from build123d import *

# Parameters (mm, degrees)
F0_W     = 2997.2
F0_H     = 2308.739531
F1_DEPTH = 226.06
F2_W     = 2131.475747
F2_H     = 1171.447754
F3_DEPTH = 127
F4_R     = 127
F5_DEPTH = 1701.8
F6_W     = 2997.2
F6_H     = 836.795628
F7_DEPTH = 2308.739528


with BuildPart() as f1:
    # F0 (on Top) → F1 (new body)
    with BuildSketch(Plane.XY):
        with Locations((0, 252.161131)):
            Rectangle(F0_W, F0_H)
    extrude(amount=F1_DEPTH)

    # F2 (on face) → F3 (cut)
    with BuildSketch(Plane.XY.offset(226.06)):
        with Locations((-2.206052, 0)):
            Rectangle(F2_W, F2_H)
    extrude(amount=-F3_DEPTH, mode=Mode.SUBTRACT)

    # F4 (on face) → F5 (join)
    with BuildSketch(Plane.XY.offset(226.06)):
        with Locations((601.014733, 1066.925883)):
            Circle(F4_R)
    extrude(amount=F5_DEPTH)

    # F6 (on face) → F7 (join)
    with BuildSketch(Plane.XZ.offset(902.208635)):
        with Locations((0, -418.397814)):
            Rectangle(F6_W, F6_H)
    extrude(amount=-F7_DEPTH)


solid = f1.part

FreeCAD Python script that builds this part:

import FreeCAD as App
import Part
import Sketcher
Q = App.Units.Quantity


def add_polygon(sketch, points):
    """Adds a closed chain of lines whose ends are joined by coincident constraints."""
    first, n = sketch.GeometryCount, len(points)
    for a, b in zip(points, points[1:] + points[:1]):
        sketch.addGeometry(Part.LineSegment(App.Vector(*a, 0), App.Vector(*b, 0)), False)
    for i in range(n):
        sketch.addConstraint(Sketcher.Constraint("Coincident", first + i, 2, first + (i + 1) % n, 1))

doc = App.newDocument("Part")
params = doc.addObject("Spreadsheet::Sheet", "Params")
for row, (alias, value) in enumerate([
    ("sketch1_width", "118 in"),
    ("pad1_length", "8.9 in"),
    ("pocket1_length", "5 in"),
    ("sketch3_diameter", "10 in"),
    ("pad2_length", "67 in"),
    ("sketch4_width", "118 in"),
    ("pad3_length", "2308.739528 mm"),
], start=1):
    params.set(f"A{row}", alias)
    params.set(f"B{row}", "=" + value)
    params.setAlias(f"B{row}", alias)

body = doc.addObject("PartDesign::Body", "Body")

# Sketch on XY plane
sketch1 = body.newObject("Sketcher::SketchObject", "Sketch")
sketch1.AttachmentSupport = (doc.getObject("XY_Plane"), [""])
sketch1.MapMode = "FlatFace"
add_polygon(sketch1, [(-1498.6, 1406.530896), (-1498.6, -902.208635), (1498.6, -902.208635), (1498.6, 1406.530896)])  # lines 0-3
sketch1.addConstraint(Sketcher.Constraint("Vertical", 0))
sketch1.addConstraint(Sketcher.Constraint("Horizontal", 1))
sketch1.addConstraint(Sketcher.Constraint("Vertical", 2))
sketch1.addConstraint(Sketcher.Constraint("Horizontal", 3))
sketch1.addConstraint(Sketcher.Constraint("DistanceX", 1, 1, 1, 2, Q("118 in")))
sketch1.addConstraint(Sketcher.Constraint("DistanceX", 0, 2, -1, 1, Q("59 in")))
sketch1.addConstraint(Sketcher.Constraint("DistanceY", 0, 2, 0, 1, 2308.739531))
sketch1.addConstraint(Sketcher.Constraint("DistanceY", 0, 2, -1, 1, 902.208635))
sketch1.setExpression("Constraints[8]", "Params.sketch1_width")
pad1 = body.newObject("PartDesign::Pad", "Pad")
pad1.Profile = sketch1
pad1.setExpression("Length", "Params.pad1_length")

# Sketch on XY plane
sketch2 = body.newObject("Sketcher::SketchObject", "Sketch001")
sketch2.AttachmentSupport = (doc.getObject("XY_Plane"), [""])
sketch2.MapMode = "FlatFace"
sketch2.AttachmentOffset = App.Placement(App.Vector(0, 0, 8.9 * 25.4), App.Rotation())
add_polygon(sketch2, [(-1067.943925, 585.723877), (-1067.943925, -585.723877), (1063.531821, -585.723877), (1063.531821, 585.723877)])  # lines 0-3
sketch2.addConstraint(Sketcher.Constraint("Vertical", 0))
sketch2.addConstraint(Sketcher.Constraint("Horizontal", 1))
sketch2.addConstraint(Sketcher.Constraint("Vertical", 2))
sketch2.addConstraint(Sketcher.Constraint("Horizontal", 3))
sketch2.addConstraint(Sketcher.Constraint("DistanceX", 1, 1, 1, 2, 2131.475747))
sketch2.addConstraint(Sketcher.Constraint("DistanceY", 0, 2, 0, 1, 1171.447754))
sketch2.addConstraint(Sketcher.Constraint("DistanceX", -1, 1, 1, 2, 1063.531821))
sketch2.addConstraint(Sketcher.Constraint("DistanceY", 0, 2, -1, 1, 585.723877))
pocket1 = body.newObject("PartDesign::Pocket", "Pocket")
pocket1.Profile = sketch2
pocket1.setExpression("Length", "Params.pocket1_length")

# Sketch on XY plane
sketch3 = body.newObject("Sketcher::SketchObject", "Sketch002")
sketch3.AttachmentSupport = (doc.getObject("XY_Plane"), [""])
sketch3.MapMode = "FlatFace"
sketch3.AttachmentOffset = App.Placement(App.Vector(0, 0, 8.9 * 25.4), App.Rotation())
sketch3.addGeometry(Part.Circle(App.Vector(601.014733, 1066.925883, 0), App.Vector(0, 0, 1), 127), False)
sketch3.addConstraint(Sketcher.Constraint("Diameter", 0, Q("10 in")))
sketch3.addConstraint(Sketcher.Constraint("DistanceX", -1, 1, 0, 3, 601.014733))
sketch3.addConstraint(Sketcher.Constraint("DistanceY", -1, 1, 0, 3, 1066.925883))
sketch3.setExpression("Constraints[0]", "Params.sketch3_diameter")
pad2 = body.newObject("PartDesign::Pad", "Pad001")
pad2.Profile = sketch3
pad2.setExpression("Length", "Params.pad2_length")

# Sketch on XZ plane
sketch4 = body.newObject("Sketcher::SketchObject", "Sketch003")
sketch4.AttachmentSupport = (doc.getObject("XZ_Plane"), [""])
sketch4.MapMode = "FlatFace"
sketch4.AttachmentOffset = App.Placement(App.Vector(0, 0, 902.208635), App.Rotation())
add_polygon(sketch4, [(-1498.6, 0), (-1498.6, -836.795628), (1498.6, -836.795628), (1498.6, 0)])  # lines 0-3
sketch4.addConstraint(Sketcher.Constraint("Vertical", 0))
sketch4.addConstraint(Sketcher.Constraint("Horizontal", 1))
sketch4.addConstraint(Sketcher.Constraint("Vertical", 2))
sketch4.addConstraint(Sketcher.Constraint("Horizontal", 3))
sketch4.addConstraint(Sketcher.Constraint("Symmetric", 2, 2, 3, 2, -1, 1))
sketch4.addConstraint(Sketcher.Constraint("DistanceX", 1, 1, 1, 2, Q("118 in")))
sketch4.addConstraint(Sketcher.Constraint("DistanceY", 0, 2, 0, 1, 836.795628))
sketch4.setExpression("Constraints[9]", "Params.sketch4_width")
pad3 = body.newObject("PartDesign::Pad", "Pad002")
pad3.Profile = sketch4
pad3.setExpression("Length", "Params.pad3_length")
pad3.Reversed = True

doc.recompute()
